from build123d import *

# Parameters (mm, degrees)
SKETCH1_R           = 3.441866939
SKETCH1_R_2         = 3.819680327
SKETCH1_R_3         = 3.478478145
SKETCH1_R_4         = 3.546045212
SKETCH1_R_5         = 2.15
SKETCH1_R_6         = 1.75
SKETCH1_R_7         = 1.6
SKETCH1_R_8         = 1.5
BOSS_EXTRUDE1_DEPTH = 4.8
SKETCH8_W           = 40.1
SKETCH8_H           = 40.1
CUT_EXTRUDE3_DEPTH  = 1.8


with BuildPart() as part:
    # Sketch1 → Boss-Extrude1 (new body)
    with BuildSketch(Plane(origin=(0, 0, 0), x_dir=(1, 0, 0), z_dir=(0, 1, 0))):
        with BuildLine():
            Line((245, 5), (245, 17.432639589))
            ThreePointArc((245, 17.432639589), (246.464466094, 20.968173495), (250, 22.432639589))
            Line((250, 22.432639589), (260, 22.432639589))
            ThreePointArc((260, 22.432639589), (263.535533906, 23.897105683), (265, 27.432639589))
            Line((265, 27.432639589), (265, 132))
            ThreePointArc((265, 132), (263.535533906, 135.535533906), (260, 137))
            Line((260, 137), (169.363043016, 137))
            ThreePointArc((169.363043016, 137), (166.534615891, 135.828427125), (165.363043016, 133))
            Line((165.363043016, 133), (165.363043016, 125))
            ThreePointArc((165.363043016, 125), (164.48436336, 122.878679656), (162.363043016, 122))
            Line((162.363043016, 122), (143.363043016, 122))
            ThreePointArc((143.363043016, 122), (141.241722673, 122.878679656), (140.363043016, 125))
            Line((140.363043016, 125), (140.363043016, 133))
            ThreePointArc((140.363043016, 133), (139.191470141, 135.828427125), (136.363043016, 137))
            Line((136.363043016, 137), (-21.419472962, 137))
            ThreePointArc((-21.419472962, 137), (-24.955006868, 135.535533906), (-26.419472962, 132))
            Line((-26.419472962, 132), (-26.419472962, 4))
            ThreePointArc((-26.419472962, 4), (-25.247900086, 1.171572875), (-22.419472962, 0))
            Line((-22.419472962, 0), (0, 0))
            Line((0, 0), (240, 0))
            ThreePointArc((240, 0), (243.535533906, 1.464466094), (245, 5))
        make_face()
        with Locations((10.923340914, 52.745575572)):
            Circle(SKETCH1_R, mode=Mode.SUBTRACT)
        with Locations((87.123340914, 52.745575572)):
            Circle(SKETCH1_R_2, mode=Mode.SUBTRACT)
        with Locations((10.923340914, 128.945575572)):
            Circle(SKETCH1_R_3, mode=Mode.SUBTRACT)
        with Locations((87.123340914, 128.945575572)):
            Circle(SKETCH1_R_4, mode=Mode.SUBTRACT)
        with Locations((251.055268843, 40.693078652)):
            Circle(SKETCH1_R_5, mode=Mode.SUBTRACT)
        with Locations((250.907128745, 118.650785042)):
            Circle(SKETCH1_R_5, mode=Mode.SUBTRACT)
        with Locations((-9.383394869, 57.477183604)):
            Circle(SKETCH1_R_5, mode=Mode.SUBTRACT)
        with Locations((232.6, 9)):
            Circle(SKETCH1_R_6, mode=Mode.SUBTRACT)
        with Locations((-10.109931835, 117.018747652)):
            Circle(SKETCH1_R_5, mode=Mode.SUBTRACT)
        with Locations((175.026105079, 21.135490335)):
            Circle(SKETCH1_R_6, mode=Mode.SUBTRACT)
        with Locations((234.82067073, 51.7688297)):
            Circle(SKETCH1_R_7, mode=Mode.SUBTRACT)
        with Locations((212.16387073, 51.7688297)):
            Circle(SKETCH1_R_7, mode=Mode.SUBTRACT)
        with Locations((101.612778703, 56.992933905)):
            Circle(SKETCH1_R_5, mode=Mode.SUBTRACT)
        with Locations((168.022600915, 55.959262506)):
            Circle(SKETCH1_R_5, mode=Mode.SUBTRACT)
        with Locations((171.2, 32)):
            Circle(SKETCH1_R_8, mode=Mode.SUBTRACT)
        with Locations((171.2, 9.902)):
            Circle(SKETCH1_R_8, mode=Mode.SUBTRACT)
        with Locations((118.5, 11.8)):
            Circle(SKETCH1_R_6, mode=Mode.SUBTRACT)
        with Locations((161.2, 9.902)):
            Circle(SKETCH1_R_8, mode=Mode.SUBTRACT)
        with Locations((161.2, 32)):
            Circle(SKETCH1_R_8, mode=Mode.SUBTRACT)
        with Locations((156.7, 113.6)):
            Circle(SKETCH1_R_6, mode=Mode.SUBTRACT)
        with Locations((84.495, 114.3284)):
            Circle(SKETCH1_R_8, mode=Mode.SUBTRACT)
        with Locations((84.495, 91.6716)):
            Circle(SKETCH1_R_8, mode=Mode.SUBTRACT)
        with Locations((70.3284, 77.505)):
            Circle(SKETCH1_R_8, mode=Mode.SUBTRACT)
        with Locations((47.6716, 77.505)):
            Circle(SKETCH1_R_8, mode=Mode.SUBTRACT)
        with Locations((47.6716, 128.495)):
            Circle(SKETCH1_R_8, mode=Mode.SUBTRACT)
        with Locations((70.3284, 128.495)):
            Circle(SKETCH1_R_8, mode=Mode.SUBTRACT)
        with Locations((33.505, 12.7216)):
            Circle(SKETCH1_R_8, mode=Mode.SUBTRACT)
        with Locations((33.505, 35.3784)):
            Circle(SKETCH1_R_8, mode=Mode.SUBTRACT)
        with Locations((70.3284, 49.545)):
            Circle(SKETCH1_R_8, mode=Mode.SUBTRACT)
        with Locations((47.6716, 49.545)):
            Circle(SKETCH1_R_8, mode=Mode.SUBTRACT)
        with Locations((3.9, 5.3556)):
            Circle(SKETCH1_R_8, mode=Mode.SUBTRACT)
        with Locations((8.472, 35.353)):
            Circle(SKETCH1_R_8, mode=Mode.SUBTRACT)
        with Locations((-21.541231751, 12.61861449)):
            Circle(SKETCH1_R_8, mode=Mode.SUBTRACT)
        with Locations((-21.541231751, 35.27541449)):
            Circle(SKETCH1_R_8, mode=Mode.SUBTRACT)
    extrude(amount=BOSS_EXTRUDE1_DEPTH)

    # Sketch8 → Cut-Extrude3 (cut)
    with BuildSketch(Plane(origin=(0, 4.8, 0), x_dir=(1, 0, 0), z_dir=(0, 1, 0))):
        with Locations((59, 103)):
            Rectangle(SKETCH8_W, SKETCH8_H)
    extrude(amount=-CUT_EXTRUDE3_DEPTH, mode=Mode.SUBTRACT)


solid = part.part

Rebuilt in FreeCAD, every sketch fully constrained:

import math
import FreeCAD as App
import Part
import Sketcher

doc = App.newDocument("Part")
body = doc.addObject("PartDesign::Body", "Body")

# Sketch on XZ plane
sketch1 = body.newObject("Sketcher::SketchObject", "Sketch")
sketch1.AttachmentSupport = (doc.getObject("XZ_Plane"), [""])
sketch1.MapMode = "FlatFace"
sketch1.addGeometry(Part.LineSegment(App.Vector(245, -5, 0), App.Vector(245, -17.4, 0)), False)
sketch1.addGeometry(Part.ArcOfCircle(Part.Circle(App.Vector(250, -17.4, 0), App.Vector(0, 0, 1), 5), math.radians(180), math.radians(270)), False)
sketch1.addGeometry(Part.LineSegment(App.Vector(250, -22.4, 0), App.Vector(260, -22.4, 0)), False)
sketch1.addGeometry(Part.ArcOfCircle(Part.Circle(App.Vector(260, -27.4, 0), App.Vector(0, 0, 1), 5), math.radians(0), math.radians(90)), False)
sketch1.addGeometry(Part.LineSegment(App.Vector(265, -27.4, 0), App.Vector(265, -132, 0)), False)
sketch1.addGeometry(Part.ArcOfCircle(Part.Circle(App.Vector(260, -132, 0), App.Vector(0, 0, 1), 5), math.radians(-90), math.radians(0)), False)
sketch1.addGeometry(Part.LineSegment(App.Vector(260, -137, 0), App.Vector(169.4, -137, 0)), False)
sketch1.addGeometry(Part.ArcOfCircle(Part.Circle(App.Vector(169.4, -133, 0), App.Vector(0, 0, 1), 4), math.radians(180), math.radians(270)), False)
sketch1.addGeometry(Part.LineSegment(App.Vector(165.4, -133, 0), App.Vector(165.4, -125, 0)), False)
sketch1.addGeometry(Part.ArcOfCircle(Part.Circle(App.Vector(162.4, -125, 0), App.Vector(0, 0, 1), 3), math.radians(0), math.radians(90)), False)
sketch1.addGeometry(Part.LineSegment(App.Vector(162.4, -122, 0), App.Vector(143.4, -122, 0)), False)
sketch1.addGeometry(Part.ArcOfCircle(Part.Circle(App.Vector(143.4, -125, 0), App.Vector(0, 0, 1), 3), math.radians(90), math.radians(180)), False)
sketch1.addGeometry(Part.LineSegment(App.Vector(140.4, -125, 0), App.Vector(140.4, -133, 0)), False)
sketch1.addGeometry(Part.ArcOfCircle(Part.Circle(App.Vector(136.4, -133, 0), App.Vector(0, 0, 1), 4), math.radians(-90), math.radians(0)), False)
sketch1.addGeometry(Part.LineSegment(App.Vector(136.4, -137, 0), App.Vector(-21.4, -137, 0)), False)
sketch1.addGeometry(Part.ArcOfCircle(Part.Circle(App.Vector(-21.4, -132, 0), App.Vector(0, 0, 1), 5), math.radians(180), math.radians(270)), False)
sketch1.addGeometry(Part.LineSegment(App.Vector(-26.4, -132, 0), App.Vector(-26.4, -4, 0)), False)
sketch1.addGeometry(Part.ArcOfCircle(Part.Circle(App.Vector(-22.4, -4, 0), App.Vector(0, 0, 1), 4), math.radians(90), math.radians(180)), False)
sketch1.addGeometry(Part.LineSegment(App.Vector(-22.4, 0, 0), App.Vector(240, 0, 0)), False)
sketch1.addGeometry(Part.ArcOfCircle(Part.Circle(App.Vector(240, -5, 0), App.Vector(0, 0, 1), 5), math.radians(0), math.radians(90)), False)
sketch1.addGeometry(Part.Circle(App.Vector(3.9, -5.4, 0), App.Vector(0, 0, 1), 1.5), False)
sketch1.addGeometry(Part.Circle(App.Vector(-21.5, -12.6, 0), App.Vector(0, 0, 1), 1.5), False)
sketch1.addGeometry(Part.Circle(App.Vector(33.5, -12.7, 0), App.Vector(0, 0, 1), 1.5), False)
sketch1.addGeometry(Part.Circle(App.Vector(-21.5, -35.3, 0), App.Vector(0, 0, 1), 1.5), False)
sketch1.addGeometry(Part.Circle(App.Vector(8.5, -35.4, 0), App.Vector(0, 0, 1), 1.5), False)
sketch1.addGeometry(Part.Circle(App.Vector(33.5, -35.4, 0), App.Vector(0, 0, 1), 1.5), False)
sketch1.addGeometry(Part.Circle(App.Vector(-9.4, -57.5, 0), App.Vector(0, 0, 1), 2.1), False)
sketch1.addGeometry(Part.Circle(App.Vector(10.9, -52.7, 0), App.Vector(0, 0, 1), 3.4), False)
sketch1.addGeometry(Part.Circle(App.Vector(47.7, -49.5, 0), App.Vector(0, 0, 1), 1.5), False)
sketch1.addGeometry(Part.Circle(App.Vector(70.3, -49.5, 0), App.Vector(0, 0, 1), 1.5), False)
sketch1.addGeometry(Part.Circle(App.Vector(87.1, -52.7, 0), App.Vector(0, 0, 1), 3.8), False)
sketch1.addGeometry(Part.Circle(App.Vector(101.6, -57, 0), App.Vector(0, 0, 1), 2.1), False)
sketch1.addGeometry(Part.Circle(App.Vector(118.5, -11.8, 0), App.Vector(0, 0, 1), 1.8), False)
sketch1.addGeometry(Part.Circle(App.Vector(161.2, -9.9, 0), App.Vector(0, 0, 1), 1.5), False)
sketch1.addGeometry(Part.Circle(App.Vector(171.2, -9.9, 0), App.Vector(0, 0, 1), 1.5), False)
sketch1.addGeometry(Part.Circle(App.Vector(175, -21.1, 0), App.Vector(0, 0, 1), 1.8), False)
sketch1.addGeometry(Part.Circle(App.Vector(161.2, -32, 0), App.Vector(0, 0, 1), 1.5), False)
sketch1.addGeometry(Part.Circle(App.Vector(171.2, -32, 0), App.Vector(0, 0, 1), 1.5), False)
sketch1.addGeometry(Part.Circle(App.Vector(232.6, -9, 0), App.Vector(0, 0, 1), 1.8), False)
sketch1.addGeometry(Part.Circle(App.Vector(168, -56, 0), App.Vector(0, 0, 1), 2.1), False)
sketch1.addGeometry(Part.Circle(App.Vector(212.2, -51.8, 0), App.Vector(0, 0, 1), 1.6), False)
sketch1.addGeometry(Part.Circle(App.Vector(251.1, -40.7, 0), App.Vector(0, 0, 1), 2.1), False)
sketch1.addGeometry(Part.Circle(App.Vector(234.8, -51.8, 0), App.Vector(0, 0, 1), 1.6), False)
sketch1.addGeometry(Part.Circle(App.Vector(47.7, -77.5, 0), App.Vector(0, 0, 1), 1.5), False)
sketch1.addGeometry(Part.Circle(App.Vector(70.3, -77.5, 0), App.Vector(0, 0, 1), 1.5), False)
sketch1.addGeometry(Part.Circle(App.Vector(84.5, -91.7, 0), App.Vector(0, 0, 1), 1.5), False)
sketch1.addGeometry(Part.Circle(App.Vector(-10.1, -117, 0), App.Vector(0, 0, 1), 2.1), False)
sketch1.addGeometry(Part.Circle(App.Vector(10.9, -128.9, 0), App.Vector(0, 0, 1), 3.5), False)
sketch1.addGeometry(Part.Circle(App.Vector(84.5, -114.3, 0), App.Vector(0, 0, 1), 1.5), False)
sketch1.addGeometry(Part.Circle(App.Vector(47.7, -128.5, 0), App.Vector(0, 0, 1), 1.5), False)
sketch1.addGeometry(Part.Circle(App.Vector(70.3, -128.5, 0), App.Vector(0, 0, 1), 1.5), False)
sketch1.addGeometry(Part.Circle(App.Vector(87.1, -128.9, 0), App.Vector(0, 0, 1), 3.5), False)
sketch1.addGeometry(Part.Circle(App.Vector(156.7, -113.6, 0), App.Vector(0, 0, 1), 1.8), False)
sketch1.addGeometry(Part.Circle(App.Vector(250.9, -118.7, 0), App.Vector(0, 0, 1), 2.1), False)
sketch1.addConstraint(Sketcher.Constraint("Tangent", 0, 2, 1, 1))
sketch1.addConstraint(Sketcher.Constraint("Tangent", 1, 2, 2, 1))
sketch1.addConstraint(Sketcher.Constraint("Tangent", 2, 2, 3, 2))
sketch1.addConstraint(Sketcher.Constraint("Tangent", 3, 1, 4, 1))
sketch1.addConstraint(Sketcher.Constraint("Tangent", 4, 2, 5, 2))
sketch1.addConstraint(Sketcher.Constraint("Tangent", 5, 1, 6, 1))
sketch1.addConstraint(Sketcher.Constraint("Tangent", 6, 2, 7, 2))
sketch1.addConstraint(Sketcher.Constraint("Tangent", 7, 1, 8, 1))
sketch1.addConstraint(Sketcher.Constraint("Tangent", 8, 2, 9, 1))
sketch1.addConstraint(Sketcher.Constraint("Tangent", 9, 2, 10, 1))
sketch1.addConstraint(Sketcher.Constraint("Tangent", 10, 2, 11, 1))
sketch1.addConstraint(Sketcher.Constraint("Tangent", 11, 2, 12, 1))
sketch1.addConstraint(Sketcher.Constraint("Tangent", 12, 2, 13, 2))
sketch1.addConstraint(Sketcher.Constraint("Tangent", 13, 1, 14, 1))
sketch1.addConstraint(Sketcher.Constraint("Tangent", 14, 2, 15, 2))
sketch1.addConstraint(Sketcher.Constraint("Tangent", 15, 1, 16, 1))
sketch1.addConstraint(Sketcher.Constraint("Tangent", 16, 2, 17, 2))
sketch1.addConstraint(Sketcher.Constraint("Tangent", 17, 1, 18, 1))
sketch1.addConstraint(Sketcher.Constraint("Tangent", 18, 2, 19, 2))
sketch1.addConstraint(Sketcher.Constraint("Tangent", 19, 1, 0, 1))
sketch1.addConstraint(Sketcher.Constraint("Vertical", 0))
sketch1.addConstraint(Sketcher.Constraint("Horizontal", 2))
sketch1.addConstraint(Sketcher.Constraint("Vertical", 4))
sketch1.addConstraint(Sketcher.Constraint("Horizontal", 6))
sketch1.addConstraint(Sketcher.Constraint("Vertical", 8))
sketch1.addConstraint(Sketcher.Constraint("Horizontal", 10))
sketch1.addConstraint(Sketcher.Constraint("Vertical", 12))
sketch1.addConstraint(Sketcher.Constraint("Horizontal", 14))
sketch1.addConstraint(Sketcher.Constraint("Vertical", 16))
sketch1.addConstraint(Sketcher.Constraint("Horizontal", 18))
sketch1.addConstraint(Sketcher.Constraint("Equal", 1, 3))
sketch1.addConstraint(Sketcher.Constraint("Equal", 3, 5))
sketch1.addConstraint(Sketcher.Constraint("Equal", 9, 11))
sketch1.addConstraint(Sketcher.Constraint("Equal", 7, 13))
sketch1.addConstraint(Sketcher.Constraint("Equal", 5, 15))
sketch1.addConstraint(Sketcher.Constraint("Equal", 13, 17))
sketch1.addConstraint(Sketcher.Constraint("Equal", 15, 19))
sketch1.addConstraint(Sketcher.Constraint("Equal", 20, 21))
sketch1.addConstraint(Sketcher.Constraint("Equal", 21, 22))
sketch1.addConstraint(Sketcher.Constraint("Equal", 22, 23))
sketch1.addConstraint(Sketcher.Constraint("Equal", 23, 24))
sketch1.addConstraint(Sketcher.Constraint("Equal", 24, 25))
sketch1.addConstraint(Sketcher.Constraint("Equal", 25, 28))
sketch1.addConstraint(Sketcher.Constraint("Equal", 28, 29))
sketch1.addConstraint(Sketcher.Constraint("Equal", 26, 31))
sketch1.addConstraint(Sketcher.Constraint("Equal", 29, 33))
sketch1.addConstraint(Sketcher.Constraint("Equal", 33, 34))
sketch1.addConstraint(Sketcher.Constraint("Equal", 32, 35))
sketch1.addConstraint(Sketcher.Constraint("Equal", 34, 36))
sketch1.addConstraint(Sketcher.Constraint("Equal", 36, 37))
sketch1.addConstraint(Sketcher.Constraint("Equal", 35, 38))
sketch1.addConstraint(Sketcher.Constraint("Equal", 31, 39))
sketch1.addConstraint(Sketcher.Constraint("Equal", 39, 41))
sketch1.addConstraint(Sketcher.Constraint("Equal", 40, 42))
sketch1.addConstraint(Sketcher.Constraint("Equal", 37, 43))
sketch1.addConstraint(Sketcher.Constraint("Equal", 43, 44))
sketch1.addConstraint(Sketcher.Constraint("Equal", 44, 45))
sketch1.addConstraint(Sketcher.Constraint("Equal", 41, 46))
sketch1.addConstraint(Sketcher.Constraint("Equal", 45, 48))
sketch1.addConstraint(Sketcher.Constraint("Equal", 48, 49))
sketch1.addConstraint(Sketcher.Constraint("Equal", 49, 50))
sketch1.addConstraint(Sketcher.Constraint("Equal", 38, 52))
sketch1.addConstraint(Sketcher.Constraint("Equal", 46, 53))
sketch1.addConstraint(Sketcher.Constraint("PointOnObject", 17, 1, -1))
sketch1.addConstraint(Sketcher.Constraint("Horizontal", 7, 3, 13, 3))
sketch1.addConstraint(Sketcher.Constraint("Horizontal", 28, 3, 29, 3))
sketch1.addConstraint(Sketcher.Constraint("Horizontal", 27, 3, 30, 3))
sketch1.addConstraint(Sketcher.Constraint("Horizontal", 33, 3, 34, 3))
sketch1.addConstraint(Sketcher.Constraint("Horizontal", 36, 3, 37, 3))
sketch1.addConstraint(Sketcher.Constraint("Horizontal", 40, 3, 42, 3))
sketch1.addConstraint(Sketcher.Constraint("Horizontal", 43, 3, 44, 3))
sketch1.addConstraint(Sketcher.Constraint("Horizontal", 49, 3, 50, 3))
sketch1.addConstraint(Sketcher.Constraint("Horizontal", 47, 3, 51, 3))
sketch1.addConstraint(Sketcher.Constraint("Vertical", 21, 3, 23, 3))
sketch1.addConstraint(Sketcher.Constraint("Vertical", 22, 3, 25, 3))
sketch1.addConstraint(Sketcher.Constraint("Vertical", 33, 3, 36, 3))
sketch1.addConstraint(Sketcher.Constraint("Vertical", 34, 3, 37, 3))
sketch1.addConstraint(Sketcher.Constraint("Vertical", 28, 3, 43, 3))
sketch1.addConstraint(Sketcher.Constraint("Vertical", 29, 3, 44, 3))
sketch1.addConstraint(Sketcher.Constraint("Vertical", 27, 3, 47, 3))
sketch1.addConstraint(Sketcher.Constraint("Vertical", 45, 3, 48, 3))
sketch1.addConstraint(Sketcher.Constraint("Vertical", 43, 3, 49, 3))
sketch1.addConstraint(Sketcher.Constraint("Vertical", 44, 3, 50, 3))
sketch1.addConstraint(Sketcher.Constraint("Vertical", 30, 3, 51, 3))
sketch1.addConstraint(Sketcher.Constraint("Diameter", 20, 3.0))
sketch1.addConstraint(Sketcher.Constraint("Radius", 1, 5.0))
sketch1.addConstraint(Sketcher.Constraint("Radius", 7, 4.0))
sketch1.addConstraint(Sketcher.Constraint("Radius", 9, 3.0))
sketch1.addConstraint(Sketcher.Constraint("Diameter", 26, 4.3))
sketch1.addConstraint(Sketcher.Constraint("Diameter", 32, 3.5))
sketch1.addConstraint(Sketcher.Constraint("Diameter", 40, 3.2))
sketch1.addConstraint(Sketcher.Constraint("DistanceX", 2, 1, 2, 2, 10.0))
sketch1.addConstraint(Sketcher.Constraint("DistanceX", 10, 2, 10, 1, 19.0))
sketch1.addConstraint(Sketcher.Constraint("DistanceY", 8, 1, 8, 2, 8.0))
sketch1.addConstraint(Sketcher.Constraint("DistanceY", 16, 1, 16, 2, 128.0))
sketch1.addConstraint(Sketcher.Constraint("DistanceX", -1, 1, 1, 3, 250.0))
sketch1.addConstraint(Sketcher.Constraint("DistanceY", 36, 3, -1, 1, 32.0))
sketch1.addConstraint(Sketcher.Constraint("DistanceY", 38, 3, -1, 1, 9.0))
sketch1.addConstraint(Sketcher.Constraint("DistanceX", -1, 1, 20, 3, 3.9))
sketch1.addConstraint(Sketcher.Constraint("DistanceX", -1, 1, 32, 3, 118.5))
sketch1.addConstraint(Sketcher.Constraint("DistanceY", 32, 3, -1, 1, 11.8))
sketch1.addConstraint(Sketcher.Constraint("DistanceX", -1, 1, 33, 3, 161.2))
sketch1.addConstraint(Sketcher.Constraint("DistanceX", -1, 1, 34, 3, 171.2))
sketch1.addConstraint(Sketcher.Constraint("DistanceX", -1, 1, 38, 3, 232.6))
sketch1.addConstraint(Sketcher.Constraint("DistanceX", -1, 1, 52, 3, 156.7))
sketch1.addConstraint(Sketcher.Constraint("DistanceY", 52, 3, -1, 1, 113.6))
sketch1.addConstraint(Sketcher.Constraint("Diameter", 30, 7.639361))
sketch1.addConstraint(Sketcher.Constraint("Diameter", 51, 7.09209))
sketch1.addConstraint(Sketcher.Constraint("Diameter", 27, 6.883734))
sketch1.addConstraint(Sketcher.Constraint("Diameter", 47, 6.956956))
sketch1.addConstraint(Sketcher.Constraint("DistanceX", -1, 1, 22, 3, 33.505))
sketch1.addConstraint(Sketcher.Constraint("DistanceX", -1, 1, 24, 3, 8.472))
sketch1.addConstraint(Sketcher.Constraint("DistanceY", 24, 3, -1, 1, 35.353))
sketch1.addConstraint(Sketcher.Constraint("DistanceY", 28, 3, -1, 1, 49.545))
sketch1.addConstraint(Sketcher.Constraint("DistanceY", 33, 3, -1, 1, 9.902))
sketch1.addConstraint(Sketcher.Constraint("DistanceY", 43, 3, -1, 1, 77.505))
sketch1.addConstraint(Sketcher.Constraint("DistanceX", -1, 1, 45, 3, 84.495))
sketch1.addConstraint(Sketcher.Constraint("DistanceY", 49, 3, -1, 1, 128.495))
sketch1.addConstraint(Sketcher.Constraint("DistanceY", 0, 2, 0, 1, 12.43264))
sketch1.addConstraint(Sketcher.Constraint("DistanceY", 20, 3, -1, 1, 5.3556))
sketch1.addConstraint(Sketcher.Constraint("DistanceY", 22, 3, -1, 1, 12.7216))
sketch1.addConstraint(Sketcher.Constraint("DistanceY", 25, 3, -1, 1, 35.3784))
sketch1.addConstraint(Sketcher.Constraint("DistanceX", -1, 1, 28, 3, 47.6716))
sketch1.addConstraint(Sketcher.Constraint("DistanceX", -1, 1, 29, 3, 70.3284))
sketch1.addConstraint(Sketcher.Constraint("DistanceX", -1, 1, 39, 3, 168.022601))
sketch1.addConstraint(Sketcher.Constraint("DistanceY", 45, 3, -1, 1, 91.6716))
sketch1.addConstraint(Sketcher.Constraint("DistanceY", 48, 3, -1, 1, 114.3284))
sketch1.addConstraint(Sketcher.Constraint("DistanceX", 6, 2, 6, 1, 90.636957))
sketch1.addConstraint(Sketcher.Constraint("DistanceX", 14, 2, 14, 1, 157.782516))
sketch1.addConstraint(Sketcher.Constraint("DistanceX", 21, 3, -1, 1, 21.541232))
sketch1.addConstraint(Sketcher.Constraint("DistanceX", -1, 1, 27, 3, 10.923341))
sketch1.addConstraint(Sketcher.Constraint("DistanceX", -1, 1, 30, 3, 87.123341))
sketch1.addConstraint(Sketcher.Constraint("DistanceX", -1, 1, 31, 3, 101.612779))
sketch1.addConstraint(Sketcher.Constraint("DistanceY", 35, 3, -1, 1, 21.13549))
sketch1.addConstraint(Sketcher.Constraint("DistanceX", -1, 1, 40, 3, 212.163871))
sketch1.addConstraint(Sketcher.Constraint("DistanceY", 40, 3, -1, 1, 51.76883))
sketch1.addConstraint(Sketcher.Constraint("DistanceX", -1, 1, 41, 3, 251.055269))
sketch1.addConstraint(Sketcher.Constraint("DistanceY", 41, 3, -1, 1, 40.693079))
sketch1.addConstraint(Sketcher.Constraint("DistanceX", -1, 1, 42, 3, 234.820671))
sketch1.addConstraint(Sketcher.Constraint("DistanceX", 46, 3, -1, 1, 10.109932))
sketch1.addConstraint(Sketcher.Constraint("DistanceX", -1, 1, 53, 3, 250.907129))
sketch1.addConstraint(Sketcher.Constraint("DistanceY", 21, 3, -1, 1, 12.618614))
sketch1.addConstraint(Sketcher.Constraint("DistanceY", 23, 3, -1, 1, 35.275414))
sketch1.addConstraint(Sketcher.Constraint("DistanceX", 26, 3, -1, 1, 9.383395))
sketch1.addConstraint(Sketcher.Constraint("DistanceY", 26, 3, -1, 1, 57.477184))
sketch1.addConstraint(Sketcher.Constraint("DistanceY", 27, 3, -1, 1, 52.745576))
sketch1.addConstraint(Sketcher.Constraint("DistanceY", 31, 3, -1, 1, 56.992934))
sketch1.addConstraint(Sketcher.Constraint("DistanceX", -1, 1, 35, 3, 175.026105))
sketch1.addConstraint(Sketcher.Constraint("DistanceY", 39, 3, -1, 1, 55.959263))
sketch1.addConstraint(Sketcher.Constraint("DistanceY", 46, 3, -1, 1, 117.018748))
sketch1.addConstraint(Sketcher.Constraint("DistanceY", 47, 3, -1, 1, 128.945576))
sketch1.addConstraint(Sketcher.Constraint("DistanceY", 53, 3, -1, 1, 118.650785))
pad1 = body.newObject("PartDesign::Pad", "Pad")
pad1.Profile = sketch1
pad1.Length = 4.8
pad1.Reversed = True

# Sketch on XZ plane
sketch2 = body.newObject("Sketcher::SketchObject", "Sketch001")
sketch2.AttachmentSupport = (doc.getObject("XZ_Plane"), [""])
sketch2.MapMode = "FlatFace"
sketch2.AttachmentOffset = App.Placement(App.Vector(0, 0, -4.8), App.Rotation())
sketch2.addGeometry(Part.LineSegment(App.Vector(39, -123, 0), App.Vector(39, -83, 0)), False)
sketch2.addGeometry(Part.LineSegment(App.Vector(39, -83, 0), App.Vector(79, -83, 0)), False)
sketch2.addGeometry(Part.LineSegment(App.Vector(79, -83, 0), App.Vector(79, -123, 0)), False)
sketch2.addGeometry(Part.LineSegment(App.Vector(79, -123, 0), App.Vector(39, -123, 0)), False)
sketch2.addConstraint(Sketcher.Constraint("Coincident", 0, 2, 1, 1))
sketch2.addConstraint(Sketcher.Constraint("Coincident", 1, 2, 2, 1))
sketch2.addConstraint(Sketcher.Constraint("Coincident", 2, 2, 3, 1))
sketch2.addConstraint(Sketcher.Constraint("Coincident", 3, 2, 0, 1))
sketch2.addConstraint(Sketcher.Constraint("Vertical", 0))
sketch2.addConstraint(Sketcher.Constraint("Horizontal", 1))
sketch2.addConstraint(Sketcher.Constraint("Vertical", 2))
sketch2.addConstraint(Sketcher.Constraint("Horizontal", 3))
sketch2.addConstraint(Sketcher.Constraint("Equal", 3, 0))
sketch2.addConstraint(Sketcher.Constraint("DistanceX", 1, 1, 1, 2, 40.1))
sketch2.addConstraint(Sketcher.Constraint("DistanceX", -1, 1, 0, 2, 38.95))
sketch2.addConstraint(Sketcher.Constraint("DistanceY", 0, 2, -1, 1, 82.95))
pocket1 = body.newObject("PartDesign::Pocket", "Pocket")
pocket1.Profile = sketch2
pocket1.Length = 1.8
pocket1.Reversed = True

doc.recompute()
